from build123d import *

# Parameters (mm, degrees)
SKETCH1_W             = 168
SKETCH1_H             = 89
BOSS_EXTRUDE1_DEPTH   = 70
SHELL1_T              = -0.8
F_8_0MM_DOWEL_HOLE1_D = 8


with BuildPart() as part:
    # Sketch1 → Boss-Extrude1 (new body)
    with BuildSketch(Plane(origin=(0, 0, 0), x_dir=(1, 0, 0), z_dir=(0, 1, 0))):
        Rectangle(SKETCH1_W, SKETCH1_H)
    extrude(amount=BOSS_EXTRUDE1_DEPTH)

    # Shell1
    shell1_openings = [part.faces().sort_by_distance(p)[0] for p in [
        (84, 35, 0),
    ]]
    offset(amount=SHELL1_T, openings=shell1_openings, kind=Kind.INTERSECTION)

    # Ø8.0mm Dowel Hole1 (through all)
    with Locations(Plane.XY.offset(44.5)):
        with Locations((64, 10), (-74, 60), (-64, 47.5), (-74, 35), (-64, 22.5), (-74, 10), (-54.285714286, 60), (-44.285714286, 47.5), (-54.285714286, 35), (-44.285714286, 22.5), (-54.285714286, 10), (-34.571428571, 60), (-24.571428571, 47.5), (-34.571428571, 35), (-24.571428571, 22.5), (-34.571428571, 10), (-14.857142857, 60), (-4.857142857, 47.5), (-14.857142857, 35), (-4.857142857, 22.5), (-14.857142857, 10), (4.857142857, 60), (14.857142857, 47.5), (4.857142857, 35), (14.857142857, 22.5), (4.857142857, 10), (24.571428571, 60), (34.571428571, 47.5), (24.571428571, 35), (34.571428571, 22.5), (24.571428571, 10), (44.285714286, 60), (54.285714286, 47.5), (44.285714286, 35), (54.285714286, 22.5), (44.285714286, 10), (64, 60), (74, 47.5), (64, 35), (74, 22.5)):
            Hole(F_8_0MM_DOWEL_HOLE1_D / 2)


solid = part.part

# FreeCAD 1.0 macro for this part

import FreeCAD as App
import Part
import Sketcher
Q = App.Units.Quantity


def faces_at(feature, points):
    """Names of the faces that lie closest to the given points."""
    faces = feature.Shape.Faces
    near = lambda p: min(range(len(faces)), key=lambda i: faces[i].distToShape(Part.Vertex(*p))[0])
    return sorted({f"Face{near(p) + 1}" for p in points})


def add_polygon(sketch, points):
    """Adds a closed chain of lines whose ends are joined by coincident constraints."""
    first, n = sketch.GeometryCount, len(points)
    for a, b in zip(points, points[1:] + points[:1]):
        sketch.addGeometry(Part.LineSegment(App.Vector(*a, 0), App.Vector(*b, 0)), False)
    for i in range(n):
        sketch.addConstraint(Sketcher.Constraint("Coincident", first + i, 2, first + (i + 1) % n, 1))

doc = App.newDocument("Part")
body = doc.addObject("PartDesign::Body", "Body")

# Sketch on XZ plane
sketch1 = doc.addObject("Sketcher::SketchObject", "Sketch")
body.addObject(sketch1)
sketch1.AttachmentSupport = (doc.XZ_Plane, [""])
sketch1.MapMode = "FlatFace"
add_polygon(sketch1, [(-84, -44), (-84, 44), (84, 44), (84, -44)])  # lines 0-3
sketch1.addConstraint([
    Sketcher.Constraint("Vertical", 0),
    Sketcher.Constraint("Horizontal", 1),
    Sketcher.Constraint("Vertical", 2),
    Sketcher.Constraint("Horizontal", 3),
    Sketcher.Constraint("Symmetric", 0, 2, 2, 2, -1, 1),
    Sketcher.Constraint("DistanceX", 1, 1, 1, 2, Q("168 mm")),
    Sketcher.Constraint("DistanceY", 0, 1, 0, 2, Q("89 mm")),
])
pad1 = doc.addObject("PartDesign::Pad", "Pad")
body.addObject(pad1)
pad1.Profile = sketch1
pad1.Length = 70
pad1.Reversed = True
doc.recompute()

thickness = doc.addObject("PartDesign::Thickness", "Thickness")
body.addObject(thickness)
thickness.Base = (pad1, faces_at(pad1, [(84, 35, 0)]))
thickness.Value = 0.8
thickness.Reversed = True
thickness.Join = "Intersection"

# Sketch on XY plane
sketch2 = doc.addObject("Sketcher::SketchObject", "Sketch001")
body.addObject(sketch2)
sketch2.AttachmentSupport = (doc.XY_Plane, [""])
sketch2.MapMode = "FlatFace"
sketch2.AttachmentOffset = App.Placement(App.Vector(0, 0, 44.5), App.Rotation())
sketch2.addGeometry([
    Part.Circle(App.Vector(64, 10, 0), App.Vector(0, 0, 1), 4),  # 0
    Part.Circle(App.Vector(-74, 60, 0), App.Vector(0, 0, 1), 4),  # 1
    Part.Circle(App.Vector(-64, 47.5, 0), App.Vector(0, 0, 1), 4),  # 2
    Part.Circle(App.Vector(-74, 35, 0), App.Vector(0, 0, 1), 4),  # 3
    Part.Circle(App.Vector(-64, 22.5, 0), App.Vector(0, 0, 1), 4),  # 4
    Part.Circle(App.Vector(-74, 10, 0), App.Vector(0, 0, 1), 4),  # 5
    Part.Circle(App.Vector(-54.3, 60, 0), App.Vector(0, 0, 1), 4),  # 6
    Part.Circle(App.Vector(-44.3, 47.5, 0), App.Vector(0, 0, 1), 4),  # 7
    Part.Circle(App.Vector(-54.3, 35, 0), App.Vector(0, 0, 1), 4),  # 8
    Part.Circle(App.Vector(-44.3, 22.5, 0), App.Vector(0, 0, 1), 4),  # 9
    Part.Circle(App.Vector(-54.3, 10, 0), App.Vector(0, 0, 1), 4),  # 10
    Part.Circle(App.Vector(-34.6, 60, 0), App.Vector(0, 0, 1), 4),  # 11
    Part.Circle(App.Vector(-24.6, 47.5, 0), App.Vector(0, 0, 1), 4),  # 12
    Part.Circle(App.Vector(-34.6, 35, 0), App.Vector(0, 0, 1), 4),  # 13
    Part.Circle(App.Vector(-24.6, 22.5, 0), App.Vector(0, 0, 1), 4),  # 14
    Part.Circle(App.Vector(-34.6, 10, 0), App.Vector(0, 0, 1), 4),  # 15
    Part.Circle(App.Vector(-14.9, 60, 0), App.Vector(0, 0, 1), 4),  # 16
    Part.Circle(App.Vector(-4.9, 47.5, 0), App.Vector(0, 0, 1), 4),  # 17
    Part.Circle(App.Vector(-14.9, 35, 0), App.Vector(0, 0, 1), 4),  # 18
    Part.Circle(App.Vector(-4.9, 22.5, 0), App.Vector(0, 0, 1), 4),  # 19
    Part.Circle(App.Vector(-14.9, 10, 0), App.Vector(0, 0, 1), 4),  # 20
    Part.Circle(App.Vector(4.9, 60, 0), App.Vector(0, 0, 1), 4),  # 21
    Part.Circle(App.Vector(14.9, 47.5, 0), App.Vector(0, 0, 1), 4),  # 22
    Part.Circle(App.Vector(4.9, 35, 0), App.Vector(0, 0, 1), 4),  # 23
    Part.Circle(App.Vector(14.9, 22.5, 0), App.Vector(0, 0, 1), 4),  # 24
    Part.Circle(App.Vector(4.9, 10, 0), App.Vector(0, 0, 1), 4),  # 25
    Part.Circle(App.Vector(24.6, 60, 0), App.Vector(0, 0, 1), 4),  # 26
    Part.Circle(App.Vector(34.6, 47.5, 0), App.Vector(0, 0, 1), 4),  # 27
    Part.Circle(App.Vector(24.6, 35, 0), App.Vector(0, 0, 1), 4),  # 28
    Part.Circle(App.Vector(34.6, 22.5, 0), App.Vector(0, 0, 1), 4),  # 29
    Part.Circle(App.Vector(24.6, 10, 0), App.Vector(0, 0, 1), 4),  # 30
    Part.Circle(App.Vector(44.3, 60, 0), App.Vector(0, 0, 1), 4),  # 31
    Part.Circle(App.Vector(54.3, 47.5, 0), App.Vector(0, 0, 1), 4),  # 32
    Part.Circle(App.Vector(44.3, 35, 0), App.Vector(0, 0, 1), 4),  # 33
    Part.Circle(App.Vector(54.3, 22.5, 0), App.Vector(0, 0, 1), 4),  # 34
    Part.Circle(App.Vector(44.3, 10, 0), App.Vector(0, 0, 1), 4),  # 35
    Part.Circle(App.Vector(64, 60, 0), App.Vector(0, 0, 1), 4),  # 36
    Part.Circle(App.Vector(74, 47.5, 0), App.Vector(0, 0, 1), 4),  # 37
    Part.Circle(App.Vector(64, 35, 0), App.Vector(0, 0, 1), 4),  # 38
    Part.Circle(App.Vector(74, 22.5, 0), App.Vector(0, 0, 1), 4),  # 39
], False)
sketch2.addConstraint([
    Sketcher.Constraint("Equal", 0, 1),
    Sketcher.Constraint("Equal", 1, 2),
    Sketcher.Constraint("Equal", 2, 3),
    Sketcher.Constraint("Equal", 3, 4),
    Sketcher.Constraint("Equal", 4, 5),
    Sketcher.Constraint("Equal", 5, 6),
    Sketcher.Constraint("Equal", 6, 7),
    Sketcher.Constraint("Equal", 7, 8),
    Sketcher.Constraint("Equal", 8, 9),
    Sketcher.Constraint("Equal", 9, 10),
    Sketcher.Constraint("Equal", 10, 11),
    Sketcher.Constraint("Equal", 11, 12),
    Sketcher.Constraint("Equal", 12, 13),
    Sketcher.Constraint("Equal", 13, 14),
    Sketcher.Constraint("Equal", 14, 15),
    Sketcher.Constraint("Equal", 15, 16),
    Sketcher.Constraint("Equal", 16, 17),
    Sketcher.Constraint("Equal", 17, 18),
    Sketcher.Constraint("Equal", 18, 19),
    Sketcher.Constraint("Equal", 19, 20),
    Sketcher.Constraint("Equal", 20, 21),
    Sketcher.Constraint("Equal", 21, 22),
    Sketcher.Constraint("Equal", 22, 23),
    Sketcher.Constraint("Equal", 23, 24),
    Sketcher.Constraint("Equal", 24, 25),
    Sketcher.Constraint("Equal", 25, 26),
    Sketcher.Constraint("Equal", 26, 27),
    Sketcher.Constraint("Equal", 27, 28),
    Sketcher.Constraint("Equal", 28, 29),
    Sketcher.Constraint("Equal", 29, 30),
    Sketcher.Constraint("Equal", 30, 31),
    Sketcher.Constraint("Equal", 31, 32),
    Sketcher.Constraint("Equal", 32, 33),
    Sketcher.Constraint("Equal", 33, 34),
    Sketcher.Constraint("Equal", 34, 35),
    Sketcher.Constraint("Equal", 35, 36),
    Sketcher.Constraint("Equal", 36, 37),
    Sketcher.Constraint("Equal", 37, 38),
    Sketcher.Constraint("Equal", 38, 39),
    Sketcher.Constraint("Horizontal", 0, 3, 5, 3),
    Sketcher.Constraint("Horizontal", 1, 3, 6, 3),
    Sketcher.Constraint("Horizontal", 2, 3, 7, 3),
    Sketcher.Constraint("Horizontal", 3, 3, 8, 3),
    Sketcher.Constraint("Horizontal", 4, 3, 9, 3),
    Sketcher.Constraint("Horizontal", 5, 3, 10, 3),
    Sketcher.Constraint("Horizontal", 6, 3, 11, 3),
    Sketcher.Constraint("Horizontal", 7, 3, 12, 3),
    Sketcher.Constraint("Horizontal", 8, 3, 13, 3),
    Sketcher.Constraint("Horizontal", 9, 3, 14, 3),
    Sketcher.Constraint("Horizontal", 10, 3, 15, 3),
    Sketcher.Constraint("Horizontal", 11, 3, 16, 3),
    Sketcher.Constraint("Horizontal", 12, 3, 17, 3),
    Sketcher.Constraint("Horizontal", 13, 3, 18, 3),
    Sketcher.Constraint("Horizontal", 14, 3, 19, 3),
    Sketcher.Constraint("Horizontal", 15, 3, 20, 3),
    Sketcher.Constraint("Horizontal", 16, 3, 21, 3),
    Sketcher.Constraint("Horizontal", 17, 3, 22, 3),
    Sketcher.Constraint("Horizontal", 18, 3, 23, 3),
    Sketcher.Constraint("Horizontal", 19, 3, 24, 3),
    Sketcher.Constraint("Horizontal", 20, 3, 25, 3),
    Sketcher.Constraint("Horizontal", 21, 3, 26, 3),
    Sketcher.Constraint("Horizontal", 22, 3, 27, 3),
    Sketcher.Constraint("Horizontal", 23, 3, 28, 3),
    Sketcher.Constraint("Horizontal", 24, 3, 29, 3),
    Sketcher.Constraint("Horizontal", 25, 3, 30, 3),
    Sketcher.Constraint("Horizontal", 26, 3, 31, 3),
    Sketcher.Constraint("Horizontal", 27, 3, 32, 3),
    Sketcher.Constraint("Horizontal", 28, 3, 33, 3),
    Sketcher.Constraint("Horizontal", 29, 3, 34, 3),
    Sketcher.Constraint("Horizontal", 30, 3, 35, 3),
    Sketcher.Constraint("Horizontal", 31, 3, 36, 3),
    Sketcher.Constraint("Horizontal", 32, 3, 37, 3),
    Sketcher.Constraint("Horizontal", 33, 3, 38, 3),
    Sketcher.Constraint("Horizontal", 34, 3, 39, 3),
    Sketcher.Constraint("Vertical", 1, 3, 3, 3),
    Sketcher.Constraint("Vertical", 2, 3, 4, 3),
    Sketcher.Constraint("Vertical", 3, 3, 5, 3),
    Sketcher.Constraint("Vertical", 6, 3, 8, 3),
    Sketcher.Constraint("Vertical", 7, 3, 9, 3),
    Sketcher.Constraint("Vertical", 8, 3, 10, 3),
    Sketcher.Constraint("Vertical", 11, 3, 13, 3),
    Sketcher.Constraint("Vertical", 12, 3, 14, 3),
    Sketcher.Constraint("Vertical", 13, 3, 15, 3),
    Sketcher.Constraint("Vertical", 16, 3, 18, 3),
    Sketcher.Constraint("Vertical", 17, 3, 19, 3),
    Sketcher.Constraint("Vertical", 18, 3, 20, 3),
    Sketcher.Constraint("Vertical", 21, 3, 23, 3),
    Sketcher.Constraint("Vertical", 22, 3, 24, 3),
    Sketcher.Constraint("Vertical", 23, 3, 25, 3),
    Sketcher.Constraint("Vertical", 26, 3, 28, 3),
    Sketcher.Constraint("Vertical", 27, 3, 29, 3),
    Sketcher.Constraint("Vertical", 28, 3, 30, 3),
    Sketcher.Constraint("Vertical", 31, 3, 33, 3),
    Sketcher.Constraint("Vertical", 32, 3, 34, 3),
    Sketcher.Constraint("Vertical", 33, 3, 35, 3),
    Sketcher.Constraint("Vertical", 0, 3, 36, 3),
    Sketcher.Constraint("Vertical", 36, 3, 38, 3),
    Sketcher.Constraint("Vertical", 37, 3, 39, 3),
    Sketcher.Constraint("Diameter", 0, Q("8 mm")),
    Sketcher.Constraint("DistanceX", -1, 1, 0, 3, Q("64 mm")),
    Sketcher.Constraint("DistanceY", -1, 1, 0, 3, Q("10 mm")),
    Sketcher.Constraint("DistanceX", 1, 3, -1, 1, Q("74 mm")),
    Sketcher.Constraint("DistanceY", -1, 1, 1, 3, Q("60 mm")),
    Sketcher.Constraint("DistanceX", 2, 3, -1, 1, Q("64 mm")),
    Sketcher.Constraint("DistanceY", -1, 1, 3, 3, Q("35 mm")),
    Sketcher.Constraint("DistanceX", -1, 1, 37, 3, Q("74 mm")),
    Sketcher.Constraint("DistanceY", 4, 3, 2, 3, Q("25 mm")),
    Sketcher.Constraint("DistanceX", 6, 3, 7, 3, Q("10 mm")),
    Sketcher.Constraint("DistanceX", 11, 3, 12, 3, Q("10 mm")),
    Sketcher.Constraint("DistanceX", 16, 3, 17, 3, Q("10 mm")),
    Sketcher.Constraint("DistanceX", 21, 3, 22, 3, Q("10 mm")),
    Sketcher.Constraint("DistanceX", 26, 3, 27, 3, Q("10 mm")),
    Sketcher.Constraint("DistanceX", 31, 3, 32, 3, Q("10 mm")),
    Sketcher.Constraint("DistanceY", -1, 1, 2, 3, Q("47.5 mm")),
    Sketcher.Constraint("DistanceX", 11, 3, -1, 1, Q("34.571429 mm")),
    Sketcher.Constraint("DistanceX", -1, 1, 26, 3, Q("24.571429 mm")),
    Sketcher.Constraint("DistanceX", 7, 3, 16, 3, Q("29.428571 mm")),
    Sketcher.Constraint("DistanceX", 12, 3, 21, 3, Q("29.428571 mm")),
    Sketcher.Constraint("DistanceX", 17, 3, 26, 3, Q("29.428571 mm")),
    Sketcher.Constraint("DistanceX", 22, 3, 31, 3, Q("29.428571 mm")),
])
doc.recompute()
hole = doc.addObject("PartDesign::Hole", "Hole")
body.addObject(hole)
hole.Profile = sketch2
hole.ThreadType = "None"
hole.Diameter = 8
hole.DepthType = "ThroughAll"

doc.recompute()
